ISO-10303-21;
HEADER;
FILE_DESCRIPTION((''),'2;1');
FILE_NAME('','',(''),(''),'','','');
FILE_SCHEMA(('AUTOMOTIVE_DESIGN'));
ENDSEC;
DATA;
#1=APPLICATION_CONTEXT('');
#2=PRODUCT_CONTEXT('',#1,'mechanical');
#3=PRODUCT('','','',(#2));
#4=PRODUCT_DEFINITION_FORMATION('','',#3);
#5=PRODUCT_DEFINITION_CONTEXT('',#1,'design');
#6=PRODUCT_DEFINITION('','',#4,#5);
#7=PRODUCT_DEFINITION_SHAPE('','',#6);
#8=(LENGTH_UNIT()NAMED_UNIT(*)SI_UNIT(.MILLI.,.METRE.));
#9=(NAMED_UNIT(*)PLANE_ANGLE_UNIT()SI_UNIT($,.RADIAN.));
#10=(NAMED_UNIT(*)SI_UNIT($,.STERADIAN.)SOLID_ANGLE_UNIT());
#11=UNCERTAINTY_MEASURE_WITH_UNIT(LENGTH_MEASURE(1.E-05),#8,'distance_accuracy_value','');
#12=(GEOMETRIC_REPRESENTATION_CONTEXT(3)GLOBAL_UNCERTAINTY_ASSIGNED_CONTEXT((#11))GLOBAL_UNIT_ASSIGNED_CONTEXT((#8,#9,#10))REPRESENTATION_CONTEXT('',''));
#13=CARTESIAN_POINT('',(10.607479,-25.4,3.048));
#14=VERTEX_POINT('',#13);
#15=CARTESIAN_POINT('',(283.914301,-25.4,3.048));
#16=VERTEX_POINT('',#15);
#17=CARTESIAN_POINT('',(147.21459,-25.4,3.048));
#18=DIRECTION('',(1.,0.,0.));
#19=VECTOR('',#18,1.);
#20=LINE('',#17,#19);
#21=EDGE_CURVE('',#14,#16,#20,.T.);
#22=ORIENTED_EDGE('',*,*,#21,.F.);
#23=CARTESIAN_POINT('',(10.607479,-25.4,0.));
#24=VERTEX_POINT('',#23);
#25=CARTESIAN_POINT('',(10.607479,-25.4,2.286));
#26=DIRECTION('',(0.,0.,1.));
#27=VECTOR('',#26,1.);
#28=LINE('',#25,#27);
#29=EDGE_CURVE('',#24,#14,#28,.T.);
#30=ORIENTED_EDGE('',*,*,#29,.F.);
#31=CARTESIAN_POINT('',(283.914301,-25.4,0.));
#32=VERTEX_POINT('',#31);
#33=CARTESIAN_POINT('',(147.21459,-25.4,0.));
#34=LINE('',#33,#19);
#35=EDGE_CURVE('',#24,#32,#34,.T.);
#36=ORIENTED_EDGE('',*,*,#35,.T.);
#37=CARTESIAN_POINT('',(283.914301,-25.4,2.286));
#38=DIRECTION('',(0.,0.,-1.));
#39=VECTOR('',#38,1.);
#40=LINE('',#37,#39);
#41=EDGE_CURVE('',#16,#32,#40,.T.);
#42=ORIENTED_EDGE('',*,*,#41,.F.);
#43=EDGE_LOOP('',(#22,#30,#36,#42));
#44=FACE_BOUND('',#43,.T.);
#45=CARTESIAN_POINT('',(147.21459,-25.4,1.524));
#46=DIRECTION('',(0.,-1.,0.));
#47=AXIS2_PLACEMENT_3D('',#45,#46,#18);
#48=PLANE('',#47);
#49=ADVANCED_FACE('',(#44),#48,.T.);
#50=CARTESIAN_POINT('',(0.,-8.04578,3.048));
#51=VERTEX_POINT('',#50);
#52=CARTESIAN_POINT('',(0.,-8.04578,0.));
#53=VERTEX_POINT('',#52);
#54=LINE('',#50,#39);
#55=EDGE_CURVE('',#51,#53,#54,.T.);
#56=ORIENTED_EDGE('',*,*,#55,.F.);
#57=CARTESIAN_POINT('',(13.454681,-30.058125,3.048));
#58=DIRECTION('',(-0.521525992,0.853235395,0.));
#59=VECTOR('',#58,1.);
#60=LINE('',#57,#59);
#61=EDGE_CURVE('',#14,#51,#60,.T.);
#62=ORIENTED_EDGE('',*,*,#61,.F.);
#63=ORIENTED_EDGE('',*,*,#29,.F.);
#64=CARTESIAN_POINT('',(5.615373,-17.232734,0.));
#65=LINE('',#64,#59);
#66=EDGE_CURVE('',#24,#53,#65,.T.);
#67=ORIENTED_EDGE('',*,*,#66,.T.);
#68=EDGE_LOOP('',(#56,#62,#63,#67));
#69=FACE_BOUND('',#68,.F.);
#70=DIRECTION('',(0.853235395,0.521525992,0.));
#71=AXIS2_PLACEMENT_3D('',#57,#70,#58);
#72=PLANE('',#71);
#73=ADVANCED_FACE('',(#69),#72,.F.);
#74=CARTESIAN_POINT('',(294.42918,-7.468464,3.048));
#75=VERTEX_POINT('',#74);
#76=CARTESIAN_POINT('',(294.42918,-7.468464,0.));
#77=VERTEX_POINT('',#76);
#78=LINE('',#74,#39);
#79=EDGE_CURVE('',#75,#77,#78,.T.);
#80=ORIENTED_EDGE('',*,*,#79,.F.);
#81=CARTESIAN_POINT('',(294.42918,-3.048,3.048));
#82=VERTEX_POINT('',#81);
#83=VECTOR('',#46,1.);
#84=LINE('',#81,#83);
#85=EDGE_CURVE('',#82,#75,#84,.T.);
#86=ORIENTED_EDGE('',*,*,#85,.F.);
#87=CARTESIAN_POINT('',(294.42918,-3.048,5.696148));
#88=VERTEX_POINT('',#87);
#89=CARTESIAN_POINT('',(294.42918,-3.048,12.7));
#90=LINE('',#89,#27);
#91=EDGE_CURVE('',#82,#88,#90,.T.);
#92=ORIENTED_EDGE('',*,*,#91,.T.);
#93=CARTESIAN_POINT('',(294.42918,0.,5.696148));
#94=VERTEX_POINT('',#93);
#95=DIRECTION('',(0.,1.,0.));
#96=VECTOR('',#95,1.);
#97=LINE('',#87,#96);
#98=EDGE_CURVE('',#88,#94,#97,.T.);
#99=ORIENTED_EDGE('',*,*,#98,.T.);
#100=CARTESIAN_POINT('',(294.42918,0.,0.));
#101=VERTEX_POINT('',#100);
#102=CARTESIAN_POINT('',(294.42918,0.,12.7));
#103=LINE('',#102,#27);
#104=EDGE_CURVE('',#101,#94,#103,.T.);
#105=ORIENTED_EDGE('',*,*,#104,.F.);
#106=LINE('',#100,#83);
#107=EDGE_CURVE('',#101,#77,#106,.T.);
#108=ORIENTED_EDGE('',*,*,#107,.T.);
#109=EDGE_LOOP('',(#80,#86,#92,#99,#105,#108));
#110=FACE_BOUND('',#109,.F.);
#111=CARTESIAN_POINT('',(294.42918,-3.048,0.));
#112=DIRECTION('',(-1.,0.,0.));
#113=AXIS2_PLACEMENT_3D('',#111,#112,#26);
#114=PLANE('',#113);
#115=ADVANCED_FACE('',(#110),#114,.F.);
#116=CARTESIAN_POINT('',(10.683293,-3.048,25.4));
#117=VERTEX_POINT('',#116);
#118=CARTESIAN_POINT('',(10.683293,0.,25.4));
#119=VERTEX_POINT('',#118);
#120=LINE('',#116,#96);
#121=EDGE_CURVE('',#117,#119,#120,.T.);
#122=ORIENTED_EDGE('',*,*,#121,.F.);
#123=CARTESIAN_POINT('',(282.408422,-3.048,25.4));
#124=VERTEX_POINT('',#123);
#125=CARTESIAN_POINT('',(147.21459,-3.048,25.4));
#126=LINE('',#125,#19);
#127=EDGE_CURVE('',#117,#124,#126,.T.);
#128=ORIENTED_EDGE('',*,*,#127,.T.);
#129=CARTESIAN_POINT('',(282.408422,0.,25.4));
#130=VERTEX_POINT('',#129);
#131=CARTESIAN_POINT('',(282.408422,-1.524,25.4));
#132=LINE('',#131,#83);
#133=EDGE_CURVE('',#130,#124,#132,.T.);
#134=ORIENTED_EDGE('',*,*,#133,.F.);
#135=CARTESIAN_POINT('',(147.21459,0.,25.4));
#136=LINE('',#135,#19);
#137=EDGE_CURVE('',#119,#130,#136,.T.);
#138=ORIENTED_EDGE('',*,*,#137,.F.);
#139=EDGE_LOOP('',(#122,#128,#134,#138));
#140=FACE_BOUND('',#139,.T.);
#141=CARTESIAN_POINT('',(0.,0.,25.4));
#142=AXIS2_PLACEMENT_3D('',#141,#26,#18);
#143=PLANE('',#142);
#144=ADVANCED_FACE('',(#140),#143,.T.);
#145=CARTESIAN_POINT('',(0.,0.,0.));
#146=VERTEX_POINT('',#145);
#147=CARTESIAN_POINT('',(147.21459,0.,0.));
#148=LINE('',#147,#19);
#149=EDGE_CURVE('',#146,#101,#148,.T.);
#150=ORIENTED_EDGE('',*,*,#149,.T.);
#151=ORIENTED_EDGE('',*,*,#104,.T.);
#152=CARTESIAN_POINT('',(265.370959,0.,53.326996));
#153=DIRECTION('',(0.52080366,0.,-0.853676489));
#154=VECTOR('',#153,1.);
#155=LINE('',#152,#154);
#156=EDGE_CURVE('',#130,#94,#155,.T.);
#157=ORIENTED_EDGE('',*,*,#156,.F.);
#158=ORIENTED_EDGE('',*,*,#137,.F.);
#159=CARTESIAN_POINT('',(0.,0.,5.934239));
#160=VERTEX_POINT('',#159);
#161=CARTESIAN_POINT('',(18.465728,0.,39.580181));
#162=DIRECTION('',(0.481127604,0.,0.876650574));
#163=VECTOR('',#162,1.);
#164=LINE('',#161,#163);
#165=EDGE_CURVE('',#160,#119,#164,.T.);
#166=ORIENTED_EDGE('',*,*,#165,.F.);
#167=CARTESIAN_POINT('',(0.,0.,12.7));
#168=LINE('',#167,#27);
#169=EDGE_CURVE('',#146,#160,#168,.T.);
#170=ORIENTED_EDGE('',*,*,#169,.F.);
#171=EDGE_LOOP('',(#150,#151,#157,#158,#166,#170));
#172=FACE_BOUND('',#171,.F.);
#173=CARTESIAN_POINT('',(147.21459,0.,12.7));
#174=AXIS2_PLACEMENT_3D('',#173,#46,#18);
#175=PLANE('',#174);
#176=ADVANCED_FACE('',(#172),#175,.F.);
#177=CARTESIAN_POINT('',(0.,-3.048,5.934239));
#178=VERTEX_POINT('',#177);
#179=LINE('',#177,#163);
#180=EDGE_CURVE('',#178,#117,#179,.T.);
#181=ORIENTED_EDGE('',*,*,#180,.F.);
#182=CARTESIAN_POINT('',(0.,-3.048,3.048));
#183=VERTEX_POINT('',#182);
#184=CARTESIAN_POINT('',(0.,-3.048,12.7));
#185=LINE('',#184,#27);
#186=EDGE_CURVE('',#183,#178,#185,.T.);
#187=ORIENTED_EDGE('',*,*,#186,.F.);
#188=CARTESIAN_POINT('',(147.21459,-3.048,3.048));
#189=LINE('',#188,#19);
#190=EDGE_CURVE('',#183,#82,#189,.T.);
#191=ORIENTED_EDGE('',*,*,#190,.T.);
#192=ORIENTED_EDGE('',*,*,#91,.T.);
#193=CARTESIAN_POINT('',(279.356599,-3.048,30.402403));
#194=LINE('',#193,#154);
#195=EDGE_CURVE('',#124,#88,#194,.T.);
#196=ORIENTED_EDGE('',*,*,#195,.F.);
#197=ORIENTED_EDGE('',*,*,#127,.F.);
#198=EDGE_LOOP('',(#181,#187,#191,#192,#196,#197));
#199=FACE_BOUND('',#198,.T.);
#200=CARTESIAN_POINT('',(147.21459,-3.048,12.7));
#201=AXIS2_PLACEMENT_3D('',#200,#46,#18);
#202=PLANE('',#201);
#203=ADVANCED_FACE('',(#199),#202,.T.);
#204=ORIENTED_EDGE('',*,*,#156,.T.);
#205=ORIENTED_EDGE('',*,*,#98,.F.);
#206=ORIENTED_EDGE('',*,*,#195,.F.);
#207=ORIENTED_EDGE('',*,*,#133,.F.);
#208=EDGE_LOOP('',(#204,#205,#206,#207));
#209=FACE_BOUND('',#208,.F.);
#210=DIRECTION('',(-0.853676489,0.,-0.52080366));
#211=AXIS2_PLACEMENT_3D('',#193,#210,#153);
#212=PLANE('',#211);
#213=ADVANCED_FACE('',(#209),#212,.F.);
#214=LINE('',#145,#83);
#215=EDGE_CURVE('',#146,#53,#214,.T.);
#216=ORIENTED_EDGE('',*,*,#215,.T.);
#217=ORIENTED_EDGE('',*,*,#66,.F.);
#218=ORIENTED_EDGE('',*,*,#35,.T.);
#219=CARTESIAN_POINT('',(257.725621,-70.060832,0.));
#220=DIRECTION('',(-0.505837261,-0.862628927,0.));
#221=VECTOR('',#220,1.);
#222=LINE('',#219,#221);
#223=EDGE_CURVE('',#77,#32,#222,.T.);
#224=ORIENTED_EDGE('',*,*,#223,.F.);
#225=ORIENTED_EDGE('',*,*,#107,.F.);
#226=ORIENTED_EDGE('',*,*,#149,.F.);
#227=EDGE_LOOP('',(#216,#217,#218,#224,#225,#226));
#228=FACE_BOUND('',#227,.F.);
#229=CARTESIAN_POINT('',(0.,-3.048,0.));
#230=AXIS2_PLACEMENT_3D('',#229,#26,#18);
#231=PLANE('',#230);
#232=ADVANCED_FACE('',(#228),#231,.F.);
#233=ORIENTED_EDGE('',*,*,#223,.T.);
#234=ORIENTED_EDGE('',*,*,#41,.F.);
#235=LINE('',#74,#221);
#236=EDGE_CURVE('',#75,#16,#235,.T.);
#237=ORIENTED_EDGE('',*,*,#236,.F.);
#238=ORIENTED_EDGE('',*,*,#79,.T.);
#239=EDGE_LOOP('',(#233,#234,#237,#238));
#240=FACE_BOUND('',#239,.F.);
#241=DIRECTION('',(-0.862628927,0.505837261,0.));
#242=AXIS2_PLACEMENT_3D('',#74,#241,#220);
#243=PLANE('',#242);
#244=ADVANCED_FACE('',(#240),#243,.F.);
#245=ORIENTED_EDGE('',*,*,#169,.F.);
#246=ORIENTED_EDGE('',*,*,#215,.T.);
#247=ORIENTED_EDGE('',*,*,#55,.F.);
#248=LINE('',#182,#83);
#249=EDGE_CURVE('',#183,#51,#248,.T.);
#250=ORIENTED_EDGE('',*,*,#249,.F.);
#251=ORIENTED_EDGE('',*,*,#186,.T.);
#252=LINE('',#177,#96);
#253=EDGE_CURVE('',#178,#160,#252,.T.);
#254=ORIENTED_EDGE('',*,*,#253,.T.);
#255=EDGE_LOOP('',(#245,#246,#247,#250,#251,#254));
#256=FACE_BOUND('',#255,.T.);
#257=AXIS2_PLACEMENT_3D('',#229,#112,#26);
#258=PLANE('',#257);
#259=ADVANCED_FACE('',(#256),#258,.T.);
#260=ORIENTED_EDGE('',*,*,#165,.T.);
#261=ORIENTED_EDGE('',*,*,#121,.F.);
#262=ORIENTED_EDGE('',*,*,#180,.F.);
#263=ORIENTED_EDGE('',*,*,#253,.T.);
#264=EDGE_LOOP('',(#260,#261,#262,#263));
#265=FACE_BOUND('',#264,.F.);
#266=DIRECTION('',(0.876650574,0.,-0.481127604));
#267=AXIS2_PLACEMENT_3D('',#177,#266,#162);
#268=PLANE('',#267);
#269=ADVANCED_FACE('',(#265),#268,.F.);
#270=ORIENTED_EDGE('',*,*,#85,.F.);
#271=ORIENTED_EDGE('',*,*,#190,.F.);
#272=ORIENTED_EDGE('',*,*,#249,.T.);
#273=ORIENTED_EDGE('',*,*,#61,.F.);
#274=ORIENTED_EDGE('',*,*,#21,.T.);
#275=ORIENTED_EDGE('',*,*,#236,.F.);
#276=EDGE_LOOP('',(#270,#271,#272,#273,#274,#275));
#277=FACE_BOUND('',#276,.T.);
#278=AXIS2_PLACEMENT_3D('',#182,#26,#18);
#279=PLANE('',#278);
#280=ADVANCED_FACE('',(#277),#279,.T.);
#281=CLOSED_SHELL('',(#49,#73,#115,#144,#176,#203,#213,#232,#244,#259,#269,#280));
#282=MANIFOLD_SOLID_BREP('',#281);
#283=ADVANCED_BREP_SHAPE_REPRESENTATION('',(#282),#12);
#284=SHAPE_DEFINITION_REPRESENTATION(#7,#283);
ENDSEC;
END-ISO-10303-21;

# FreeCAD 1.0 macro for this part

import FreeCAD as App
import Part
import Sketcher

V = App.Vector
Q = App.Units.Quantity

doc = App.newDocument("Part")
body = doc.addObject("PartDesign::Body", "Body")

sketch1 = doc.addObject("Sketcher::SketchObject", "Sketch")
body.addObject(sketch1)
sketch1.AttachmentSupport = (doc.XZ_Plane, [""])
sketch1.MapMode = "FlatFace"
sketch1.addGeometry(Part.LineSegment(V(0, 25, 0), V(0, 0, 0)), False)
sketch1.addGeometry(Part.LineSegment(V(0, 0, 0), V(294, 0, 0)), False)
sketch1.addGeometry(Part.LineSegment(V(294, 0, 0), V(294, 25, 0)), False)
sketch1.addGeometry(Part.LineSegment(V(294, 25, 0), V(0, 25, 0)), False)
sketch1.addConstraint(Sketcher.Constraint("Coincident", 0, 2, 1, 1))
sketch1.addConstraint(Sketcher.Constraint("Coincident", 1, 2, 2, 1))
sketch1.addConstraint(Sketcher.Constraint("Coincident", 2, 2, 3, 1))
sketch1.addConstraint(Sketcher.Constraint("Coincident", 3, 2, 0, 1))
sketch1.addConstraint(Sketcher.Constraint("Vertical", 0))
sketch1.addConstraint(Sketcher.Constraint("Horizontal", 1))
sketch1.addConstraint(Sketcher.Constraint("Vertical", 2))
sketch1.addConstraint(Sketcher.Constraint("Horizontal", 3))
sketch1.addConstraint(Sketcher.Constraint("Coincident", 0, 2, -1, 1))
sketch1.addConstraint(Sketcher.Constraint("DistanceY", 0, 2, 0, 1, Q("1 in")))
sketch1.addConstraint(Sketcher.Constraint("DistanceX", 1, 1, 1, 2, Q("11.5917 in")))
pad1 = doc.addObject("PartDesign::Pad", "Pad")
body.addObject(pad1)
pad1.Profile = sketch1
pad1.Length = Q("0.12 in")

sketch2 = doc.addObject("Sketcher::SketchObject", "Sketch001")
body.addObject(sketch2)
sketch2.AttachmentSupport = (doc.XZ_Plane, [""])
sketch2.MapMode = "FlatFace"
sketch2.AttachmentOffset = App.Placement(V(0, 0, 0.12 * 25.4), App.Rotation())
sketch2.addGeometry(Part.LineSegment(V(0, 3, 0), V(0, 0, 0)), False)
sketch2.addGeometry(Part.LineSegment(V(0, 0, 0), V(294.4, 0, 0)), False)
sketch2.addGeometry(Part.LineSegment(V(294.4, 0, 0), V(294.4, 3, 0)), False)
sketch2.addGeometry(Part.LineSegment(V(294.4, 3, 0), V(0, 3, 0)), False)
sketch2.addConstraint(Sketcher.Constraint("Coincident", 0, 2, 1, 1))
sketch2.addConstraint(Sketcher.Constraint("Coincident", 1, 2, 2, 1))
sketch2.addConstraint(Sketcher.Constraint("Coincident", 2, 2, 3, 1))
sketch2.addConstraint(Sketcher.Constraint("Coincident", 3, 2, 0, 1))
sketch2.addConstraint(Sketcher.Constraint("Vertical", 0))
sketch2.addConstraint(Sketcher.Constraint("Horizontal", 1))
sketch2.addConstraint(Sketcher.Constraint("Vertical", 2))
sketch2.addConstraint(Sketcher.Constraint("Horizontal", 3))
sketch2.addConstraint(Sketcher.Constraint("Coincident", 0, 2, -1, 1))
sketch2.addConstraint(Sketcher.Constraint("DistanceY", 0, 2, 0, 1, Q("0.12 in")))
sketch2.addConstraint(Sketcher.Constraint("DistanceX", 1, 1, 1, 2, Q("11.5917 in")))
pad2 = doc.addObject("PartDesign::Pad", "Pad001")
body.addObject(pad2)
pad2.Profile = sketch2
pad2.Length = Q("0.88 in")

sketch3 = doc.addObject("Sketcher::SketchObject", "Sketch002")
body.addObject(sketch3)
sketch3.AttachmentSupport = (doc.XZ_Plane, [""])
sketch3.MapMode = "FlatFace"
sketch3.AttachmentOffset = App.Placement(V(0, 0, 0.12 * 25.4), App.Rotation())
sketch3.addGeometry(Part.LineSegment(V(0, 6, 0), V(11, 25, 0)), False)
sketch3.addGeometry(Part.LineSegment(V(11, 25, 0), V(4, 35, 0)), False)
sketch3.addGeometry(Part.LineSegment(V(4, 35, 0), V(-15, 25, 0)), False)
sketch3.addGeometry(Part.LineSegment(V(-15, 25, 0), V(0, 6, 0)), False)
sketch3.addConstraint(Sketcher.Constraint("Coincident", 0, 2, 1, 1))
sketch3.addConstraint(Sketcher.Constraint("Coincident", 1, 2, 2, 1))
sketch3.addConstraint(Sketcher.Constraint("Coincident", 2, 2, 3, 1))
sketch3.addConstraint(Sketcher.Constraint("Coincident", 3, 2, 0, 1))
sketch3.addConstraint(Sketcher.Constraint("PointOnObject", 3, 2, -2))
sketch3.addConstraint(Sketcher.Constraint("Horizontal", 0, 2, 2, 2))
sketch3.addConstraint(Sketcher.Constraint("DistanceY", -1, 1, 0, 2, Q("1 in")))
sketch3.addConstraint(Sketcher.Constraint("Distance", 3, Q("24.636289 mm")))
sketch3.addConstraint(Sketcher.Constraint("DistanceY", -1, 1, 1, 2, Q("35.47851 mm")))
sketch3.addConstraint(Sketcher.Constraint("DistanceX", 2, 2, -1, 1, Q("15.100691 mm")))
sketch3.addConstraint(Sketcher.Constraint("DistanceX", 1, 2, 0, 2, Q("6.281631 mm")))
sketch3.addConstraint(Sketcher.Constraint("Distance", 0, Q("22.204698 mm")))
pocket1 = doc.addObject("PartDesign::Pocket", "Pocket")
body.addObject(pocket1)
pocket1.Profile = sketch3
pocket1.Length = Q("1 in")

sketch4 = doc.addObject("Sketcher::SketchObject", "Sketch003")
body.addObject(sketch4)
sketch4.AttachmentSupport = (doc.XY_Plane, [""])
sketch4.MapMode = "FlatFace"
sketch4.AttachmentOffset = App.Placement(V(0, 0, 0.12 * 25.4), App.Rotation())
sketch4.addGeometry(Part.LineSegment(V(13, -30, 0), V(0, -8, 0)), False)
sketch4.addGeometry(Part.LineSegment(V(0, -8, 0), V(-5, -25, 0)), False)
sketch4.addGeometry(Part.LineSegment(V(-5, -25, 0), V(10, -44, 0)), False)
sketch4.addGeometry(Part.LineSegment(V(10, -44, 0), V(13, -30, 0)), False)
sketch4.addConstraint(Sketcher.Constraint("Coincident", 0, 2, 1, 1))
sketch4.addConstraint(Sketcher.Constraint("Coincident", 1, 2, 2, 1))
sketch4.addConstraint(Sketcher.Constraint("Coincident", 2, 2, 3, 1))
sketch4.addConstraint(Sketcher.Constraint("Coincident", 3, 2, 0, 1))
sketch4.addConstraint(Sketcher.Constraint("PointOnObject", 0, 2, -2))
sketch4.addConstraint(Sketcher.Constraint("DistanceY", 1, 2, -1, 1, Q("1 in")))
sketch4.addConstraint(Sketcher.Constraint("Distance", 1, Q("18.04692 mm")))
sketch4.addConstraint(Sketcher.Constraint("Distance", 2, Q("24.04793 mm")))
sketch4.addConstraint(Sketcher.Constraint("Distance", 3, Q("14.631561 mm")))
sketch4.addConstraint(Sketcher.Constraint("DistanceY", 0, 2, -1, 1, Q("8.04578 mm")))
sketch4.addConstraint(Sketcher.Constraint("DistanceY", 2, 2, -1, 1, Q("44.26622 mm")))
sketch4.addConstraint(Sketcher.Constraint("DistanceX", -1, 1, 3, 2, Q("13.454681 mm")))
pocket2 = doc.addObject("PartDesign::Pocket", "Pocket001")
body.addObject(pocket2)
pocket2.Profile = sketch4
pocket2.Length = Q("1 in")

sketch5 = doc.addObject("Sketcher::SketchObject", "Sketch004")
body.addObject(sketch5)
sketch5.AttachmentSupport = (doc.XY_Plane, [""])
sketch5.MapMode = "FlatFace"
sketch5.AttachmentOffset = App.Placement(V(0, 0, 0.12 * 25.4), App.Rotation())
sketch5.addGeometry(Part.LineSegment(V(300, 0, 0), V(294, -7, 0)), False)
sketch5.addGeometry(Part.LineSegment(V(294, -7, 0), V(281, -31, 0)), False)
sketch5.addGeometry(Part.LineSegment(V(281, -31, 0), V(298, -36, 0)), False)
sketch5.addGeometry(Part.LineSegment(V(298, -36, 0), V(300, 0, 0)), False)
sketch5.addConstraint(Sketcher.Constraint("Coincident", 0, 2, 1, 1))
sketch5.addConstraint(Sketcher.Constraint("Coincident", 1, 2, 2, 1))
sketch5.addConstraint(Sketcher.Constraint("Coincident", 2, 2, 3, 1))
sketch5.addConstraint(Sketcher.Constraint("Coincident", 3, 2, 0, 1))
sketch5.addConstraint(Sketcher.Constraint("PointOnObject", 3, 2, -1))
sketch5.addConstraint(Sketcher.Constraint("DistanceX", -1, 1, 0, 2, Q("11.5917 in")))
sketch5.addConstraint(Sketcher.Constraint("Distance", 1, Q("26.82871 mm")))
sketch5.addConstraint(Sketcher.Constraint("Distance", 2, Q("17.87272 mm")))
sketch5.addConstraint(Sketcher.Constraint("Distance", 3, Q("36.500611 mm")))
sketch5.addConstraint(Sketcher.Constraint("DistanceX", -1, 1, 1, 2, Q("280.858219 mm")))
sketch5.addConstraint(Sketcher.Constraint("DistanceX", -1, 1, 2, 2, Q("297.753662 mm")))
sketch5.addConstraint(Sketcher.Constraint("DistanceY", 2, 2, -1, 1, Q("36.44076 mm")))
pocket3 = doc.addObject("PartDesign::Pocket", "Pocket002")
body.addObject(pocket3)
pocket3.Profile = sketch5
pocket3.Length = Q("1 in")

sketch6 = doc.addObject("Sketcher::SketchObject", "Sketch005")
body.addObject(sketch6)
sketch6.AttachmentSupport = (doc.XZ_Plane, [""])
sketch6.MapMode = "FlatFace"
sketch6.AttachmentOffset = App.Placement(V(0, 0, 0.12 * 25.4), App.Rotation())
sketch6.addGeometry(Part.LineSegment(V(279, 30, 0), V(294, 6, 0)), False)
sketch6.addGeometry(Part.LineSegment(V(294, 6, 0), V(302, 3, 0)), False)
sketch6.addGeometry(Part.LineSegment(V(302, 3, 0), V(312, 34, 0)), False)
sketch6.addGeometry(Part.LineSegment(V(312, 34, 0), V(279, 30, 0)), False)
sketch6.addConstraint(Sketcher.Constraint("Coincident", 0, 2, 1, 1))
sketch6.addConstraint(Sketcher.Constraint("Coincident", 1, 2, 2, 1))
sketch6.addConstraint(Sketcher.Constraint("Coincident", 2, 2, 3, 1))
sketch6.addConstraint(Sketcher.Constraint("Coincident", 3, 2, 0, 1))
sketch6.addConstraint(Sketcher.Constraint("DistanceY", -1, 1, 1, 2, Q("0.12 in")))
sketch6.addConstraint(Sketcher.Constraint("DistanceX", -1, 1, 0, 2, Q("11.5917 in")))
sketch6.addConstraint(Sketcher.Constraint("DistanceY", -1, 1, 2, 2, Q("34.467302 mm")))
sketch6.addConstraint(Sketcher.Constraint("DistanceX", -1, 1, 3, 2, Q("279.356599 mm")))
sketch6.addConstraint(Sketcher.Constraint("DistanceY", 3, 2, 2, 2, Q("4.064899 mm")))
sketch6.addConstraint(Sketcher.Constraint("Distance", 1, Q("7.700261 mm")))
sketch6.addConstraint(Sketcher.Constraint("Distance", 3, Q("32.57133 mm")))
sketch6.addConstraint(Sketcher.Constraint("DistanceY", 1, 2, 0, 2, Q("2.648148 mm")))
pocket4 = doc.addObject("PartDesign::Pocket", "Pocket003")
body.addObject(pocket4)
pocket4.Profile = sketch6
pocket4.Length = Q("1 in")

doc.recompute()
